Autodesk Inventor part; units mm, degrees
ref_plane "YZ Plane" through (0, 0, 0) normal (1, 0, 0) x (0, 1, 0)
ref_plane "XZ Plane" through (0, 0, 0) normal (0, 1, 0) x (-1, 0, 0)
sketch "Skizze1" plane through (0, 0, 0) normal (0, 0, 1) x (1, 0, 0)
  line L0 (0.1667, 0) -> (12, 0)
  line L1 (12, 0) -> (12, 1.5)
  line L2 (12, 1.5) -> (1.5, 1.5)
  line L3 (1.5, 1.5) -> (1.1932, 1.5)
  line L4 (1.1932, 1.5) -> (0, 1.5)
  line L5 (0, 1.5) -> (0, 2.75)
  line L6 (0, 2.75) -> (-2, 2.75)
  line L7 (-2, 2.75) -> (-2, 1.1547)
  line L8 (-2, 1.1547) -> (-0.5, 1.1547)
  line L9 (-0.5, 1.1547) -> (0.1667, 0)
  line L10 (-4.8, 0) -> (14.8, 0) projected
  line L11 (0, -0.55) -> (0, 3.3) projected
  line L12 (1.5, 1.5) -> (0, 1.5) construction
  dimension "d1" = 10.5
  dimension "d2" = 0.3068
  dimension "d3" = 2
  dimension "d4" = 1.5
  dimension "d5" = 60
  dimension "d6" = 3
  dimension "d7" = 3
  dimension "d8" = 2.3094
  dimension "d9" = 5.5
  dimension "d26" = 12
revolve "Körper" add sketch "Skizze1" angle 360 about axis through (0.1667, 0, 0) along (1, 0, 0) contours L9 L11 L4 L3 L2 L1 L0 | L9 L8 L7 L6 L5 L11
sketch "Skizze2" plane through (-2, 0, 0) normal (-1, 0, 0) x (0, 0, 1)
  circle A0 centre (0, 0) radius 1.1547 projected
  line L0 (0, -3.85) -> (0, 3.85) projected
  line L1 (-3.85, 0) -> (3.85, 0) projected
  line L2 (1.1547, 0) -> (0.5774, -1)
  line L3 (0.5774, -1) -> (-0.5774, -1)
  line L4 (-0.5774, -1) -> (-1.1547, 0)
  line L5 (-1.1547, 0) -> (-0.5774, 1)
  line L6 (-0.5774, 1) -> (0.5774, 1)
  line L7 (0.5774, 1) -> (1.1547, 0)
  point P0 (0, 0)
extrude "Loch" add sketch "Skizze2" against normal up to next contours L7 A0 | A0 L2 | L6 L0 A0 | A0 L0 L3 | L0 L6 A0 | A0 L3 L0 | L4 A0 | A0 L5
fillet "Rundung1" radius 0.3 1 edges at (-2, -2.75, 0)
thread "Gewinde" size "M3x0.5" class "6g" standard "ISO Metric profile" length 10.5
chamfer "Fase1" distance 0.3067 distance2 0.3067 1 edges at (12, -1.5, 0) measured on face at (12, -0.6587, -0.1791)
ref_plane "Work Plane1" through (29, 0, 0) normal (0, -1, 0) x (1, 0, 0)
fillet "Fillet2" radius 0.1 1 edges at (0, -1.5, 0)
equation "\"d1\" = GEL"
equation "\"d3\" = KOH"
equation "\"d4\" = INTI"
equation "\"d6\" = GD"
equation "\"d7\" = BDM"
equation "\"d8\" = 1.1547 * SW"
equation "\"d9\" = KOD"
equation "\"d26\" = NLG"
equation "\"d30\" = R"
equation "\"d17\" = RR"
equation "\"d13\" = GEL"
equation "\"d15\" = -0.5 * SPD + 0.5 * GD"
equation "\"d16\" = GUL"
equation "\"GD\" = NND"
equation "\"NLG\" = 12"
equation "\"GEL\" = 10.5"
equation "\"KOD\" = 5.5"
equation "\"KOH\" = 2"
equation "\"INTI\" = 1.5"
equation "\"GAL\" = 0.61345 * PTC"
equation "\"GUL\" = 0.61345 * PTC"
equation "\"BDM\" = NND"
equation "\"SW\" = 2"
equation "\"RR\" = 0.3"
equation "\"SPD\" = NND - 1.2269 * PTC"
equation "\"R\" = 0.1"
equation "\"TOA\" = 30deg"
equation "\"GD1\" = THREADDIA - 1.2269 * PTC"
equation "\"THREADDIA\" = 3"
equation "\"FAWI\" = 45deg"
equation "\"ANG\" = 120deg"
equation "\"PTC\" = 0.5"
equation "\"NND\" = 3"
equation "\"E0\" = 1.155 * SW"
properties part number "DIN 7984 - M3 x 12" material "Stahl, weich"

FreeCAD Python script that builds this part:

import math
import FreeCAD as App
import Part
import Sketcher

V = App.Vector


def edges_at(feature, points):
    """Names of the edges that pass closest to the given points."""
    edges = feature.Shape.Edges
    near = lambda p: min(range(len(edges)), key=lambda i: edges[i].distToShape(Part.Vertex(*p))[0])
    return sorted({f"Edge{near(p) + 1}" for p in points})


def add_polygon(sketch, points):
    """Adds a closed chain of lines whose ends are joined by coincident constraints."""
    first, n = sketch.GeometryCount, len(points)
    for a, b in zip(points, points[1:] + points[:1]):
        sketch.addGeometry(Part.LineSegment(App.Vector(*a, 0), App.Vector(*b, 0)), False)
    for i in range(n):
        sketch.addConstraint(Sketcher.Constraint("Coincident", first + i, 2, first + (i + 1) % n, 1))

doc = App.newDocument("Part")
body = doc.addObject("PartDesign::Body", "Body")

# Sketch on XY plane
sketch1 = body.newObject("Sketcher::SketchObject", "Sketch")
sketch1.AttachmentSupport = (doc.getObject("XY_Plane"), [""])
sketch1.MapMode = "FlatFace"
add_polygon(sketch1, [(0.2, 0), (12, 0), (12, 1.5), (0, 1.5), (0, 2.8), (-2, 2.8), (-2, 1.2), (-0.5, 1.2)])  # lines 0-7
sketch1.addConstraint(Sketcher.Constraint("Horizontal", 0))
sketch1.addConstraint(Sketcher.Constraint("Vertical", 1))
sketch1.addConstraint(Sketcher.Constraint("Horizontal", 2))
sketch1.addConstraint(Sketcher.Constraint("Vertical", 3))
sketch1.addConstraint(Sketcher.Constraint("Horizontal", 4))
sketch1.addConstraint(Sketcher.Constraint("Vertical", 5))
sketch1.addConstraint(Sketcher.Constraint("Horizontal", 6))
sketch1.addConstraint(Sketcher.Constraint("PointOnObject", 0, 2, -1))
sketch1.addConstraint(Sketcher.Constraint("PointOnObject", 2, 2, -2))
sketch1.addConstraint(Sketcher.Constraint("Equal", 6, 1))
sketch1.addConstraint(Sketcher.Constraint("DistanceX", 2, 2, 2, 1, 12.0))
sketch1.addConstraint(Sketcher.Constraint("DistanceX", 4, 2, 4, 1, 2.0))
sketch1.addConstraint(Sketcher.Constraint("DistanceX", 6, 1, 6, 2, 1.5))
sketch1.addConstraint(Sketcher.Constraint("DistanceY", 3, 1, 3, 2, 1.25))
sketch1.addConstraint(Sketcher.Constraint("DistanceX", 0, 1, 0, 2, 11.8333))
sketch1.addConstraint(Sketcher.Constraint("DistanceY", 5, 2, 5, 1, 1.5953))
revolution = body.newObject("PartDesign::Revolution", "Revolution")
revolution.Profile = sketch1
revolution.ReferenceAxis = (sketch1, ["H_Axis"])
revolution.Angle = 360

# Sketch on YZ plane
sketch2 = body.newObject("Sketcher::SketchObject", "Sketch001")
sketch2.AttachmentSupport = (doc.getObject("YZ_Plane"), [""])
sketch2.MapMode = "FlatFace"
sketch2.AttachmentOffset = App.Placement(V(0, 0, -2), App.Rotation())
sketch2.addGeometry(Part.LineSegment(V(1, 0.6, 0), V(0, 1.2, 0)), False)
sketch2.addGeometry(Part.ArcOfCircle(Part.Circle(V(0, 0, 0), V(0, 0, 1), 1.2), math.radians(30), math.radians(90)), False)
sketch2.addGeometry(Part.ArcOfCircle(Part.Circle(V(0, 0, 0), V(0, 0, 1), 1.2), math.radians(90), math.radians(150)), False)
sketch2.addGeometry(Part.LineSegment(V(0, 1.2, 0), V(-1, 0.6, 0)), False)
sketch2.addGeometry(Part.ArcOfCircle(Part.Circle(V(0, 0, 0), V(0, 0, 1), 1.2), math.radians(-30), math.radians(30)), False)
sketch2.addGeometry(Part.LineSegment(V(1, 0.6, 0), V(1, -0.6, 0)), False)
sketch2.addGeometry(Part.LineSegment(V(-1, 0.6, 0), V(-1, -0.6, 0)), False)
sketch2.addGeometry(Part.ArcOfCircle(Part.Circle(V(0, 0, 0), V(0, 0, 1), 1.2), math.radians(150), math.radians(210)), False)
sketch2.addGeometry(Part.LineSegment(V(-1, -0.6, 0), V(0, -1.2, 0)), False)
sketch2.addGeometry(Part.ArcOfCircle(Part.Circle(V(0, 0, 0), V(0, 0, 1), 1.2), math.radians(-150), math.radians(-90)), False)
sketch2.addGeometry(Part.ArcOfCircle(Part.Circle(V(0, 0, 0), V(0, 0, 1), 1.2), math.radians(-90), math.radians(-30)), False)
sketch2.addGeometry(Part.LineSegment(V(0, -1.2, 0), V(1, -0.6, 0)), False)
sketch2.addConstraint(Sketcher.Constraint("Coincident", 0, 1, 1, 1))
sketch2.addConstraint(Sketcher.Constraint("Coincident", 1, 2, 0, 2))
sketch2.addConstraint(Sketcher.Constraint("Coincident", 2, 1, 3, 1))
sketch2.addConstraint(Sketcher.Constraint("Coincident", 3, 2, 2, 2))
sketch2.addConstraint(Sketcher.Constraint("Coincident", 4, 1, 5, 2))
sketch2.addConstraint(Sketcher.Constraint("Coincident", 5, 1, 4, 2))
sketch2.addConstraint(Sketcher.Constraint("Coincident", 6, 1, 7, 1))
sketch2.addConstraint(Sketcher.Constraint("Coincident", 7, 2, 6, 2))
sketch2.addConstraint(Sketcher.Constraint("Coincident", 8, 1, 9, 1))
sketch2.addConstraint(Sketcher.Constraint("Coincident", 9, 2, 8, 2))
sketch2.addConstraint(Sketcher.Constraint("Coincident", 10, 1, 11, 1))
sketch2.addConstraint(Sketcher.Constraint("Coincident", 11, 2, 10, 2))
sketch2.addConstraint(Sketcher.Constraint("Vertical", 5))
sketch2.addConstraint(Sketcher.Constraint("Vertical", 6))
sketch2.addConstraint(Sketcher.Constraint("Coincident", 1, 3, -1, 1))
sketch2.addConstraint(Sketcher.Constraint("Coincident", 2, 3, -1, 1))
sketch2.addConstraint(Sketcher.Constraint("Coincident", 4, 3, -1, 1))
sketch2.addConstraint(Sketcher.Constraint("Coincident", 7, 3, -1, 1))
sketch2.addConstraint(Sketcher.Constraint("Coincident", 9, 3, -1, 1))
sketch2.addConstraint(Sketcher.Constraint("Coincident", 10, 3, -1, 1))
sketch2.addConstraint(Sketcher.Constraint("Coincident", 2, 1, 1, 2))
sketch2.addConstraint(Sketcher.Constraint("Coincident", 5, 1, 0, 1))
sketch2.addConstraint(Sketcher.Constraint("Coincident", 6, 1, 3, 2))
sketch2.addConstraint(Sketcher.Constraint("Coincident", 8, 1, 7, 2))
sketch2.addConstraint(Sketcher.Constraint("Coincident", 10, 1, 9, 2))
sketch2.addConstraint(Sketcher.Constraint("PointOnObject", 1, 2, -2))
sketch2.addConstraint(Sketcher.Constraint("PointOnObject", 9, 2, -2))
sketch2.addConstraint(Sketcher.Constraint("Parallel", 0, 8))
sketch2.addConstraint(Sketcher.Constraint("Parallel", 3, 11))
sketch2.addConstraint(Sketcher.Constraint("DistanceX", -1, 1, 0, 1, 1.0))
sketch2.addConstraint(Sketcher.Constraint("Radius", 1, 1.1547))
pad1 = body.newObject("PartDesign::Pad", "Pad")
pad1.Profile = sketch2
pad1.Type = "UpToFirst"
doc.recompute()

fillet = body.newObject("PartDesign::Fillet", "Fillet")
fillet.Base = (pad1, edges_at(pad1, [(-2, -2.75, 0)]))
fillet.Radius = 0.3
doc.recompute()

chamfer = body.newObject("PartDesign::Chamfer", "Chamfer")
chamfer.Base = (fillet, edges_at(fillet, [(12, -1.5, 0)]))
chamfer.ChamferType = "Two distances"
chamfer.Size = 0.3067
chamfer.Size2 = 0.3067
doc.recompute()

fillet2 = body.newObject("PartDesign::Fillet", "Fillet001")
fillet2.Base = (chamfer, edges_at(chamfer, [(0, -1.5, 0)]))
fillet2.Radius = 0.1

doc.recompute()
